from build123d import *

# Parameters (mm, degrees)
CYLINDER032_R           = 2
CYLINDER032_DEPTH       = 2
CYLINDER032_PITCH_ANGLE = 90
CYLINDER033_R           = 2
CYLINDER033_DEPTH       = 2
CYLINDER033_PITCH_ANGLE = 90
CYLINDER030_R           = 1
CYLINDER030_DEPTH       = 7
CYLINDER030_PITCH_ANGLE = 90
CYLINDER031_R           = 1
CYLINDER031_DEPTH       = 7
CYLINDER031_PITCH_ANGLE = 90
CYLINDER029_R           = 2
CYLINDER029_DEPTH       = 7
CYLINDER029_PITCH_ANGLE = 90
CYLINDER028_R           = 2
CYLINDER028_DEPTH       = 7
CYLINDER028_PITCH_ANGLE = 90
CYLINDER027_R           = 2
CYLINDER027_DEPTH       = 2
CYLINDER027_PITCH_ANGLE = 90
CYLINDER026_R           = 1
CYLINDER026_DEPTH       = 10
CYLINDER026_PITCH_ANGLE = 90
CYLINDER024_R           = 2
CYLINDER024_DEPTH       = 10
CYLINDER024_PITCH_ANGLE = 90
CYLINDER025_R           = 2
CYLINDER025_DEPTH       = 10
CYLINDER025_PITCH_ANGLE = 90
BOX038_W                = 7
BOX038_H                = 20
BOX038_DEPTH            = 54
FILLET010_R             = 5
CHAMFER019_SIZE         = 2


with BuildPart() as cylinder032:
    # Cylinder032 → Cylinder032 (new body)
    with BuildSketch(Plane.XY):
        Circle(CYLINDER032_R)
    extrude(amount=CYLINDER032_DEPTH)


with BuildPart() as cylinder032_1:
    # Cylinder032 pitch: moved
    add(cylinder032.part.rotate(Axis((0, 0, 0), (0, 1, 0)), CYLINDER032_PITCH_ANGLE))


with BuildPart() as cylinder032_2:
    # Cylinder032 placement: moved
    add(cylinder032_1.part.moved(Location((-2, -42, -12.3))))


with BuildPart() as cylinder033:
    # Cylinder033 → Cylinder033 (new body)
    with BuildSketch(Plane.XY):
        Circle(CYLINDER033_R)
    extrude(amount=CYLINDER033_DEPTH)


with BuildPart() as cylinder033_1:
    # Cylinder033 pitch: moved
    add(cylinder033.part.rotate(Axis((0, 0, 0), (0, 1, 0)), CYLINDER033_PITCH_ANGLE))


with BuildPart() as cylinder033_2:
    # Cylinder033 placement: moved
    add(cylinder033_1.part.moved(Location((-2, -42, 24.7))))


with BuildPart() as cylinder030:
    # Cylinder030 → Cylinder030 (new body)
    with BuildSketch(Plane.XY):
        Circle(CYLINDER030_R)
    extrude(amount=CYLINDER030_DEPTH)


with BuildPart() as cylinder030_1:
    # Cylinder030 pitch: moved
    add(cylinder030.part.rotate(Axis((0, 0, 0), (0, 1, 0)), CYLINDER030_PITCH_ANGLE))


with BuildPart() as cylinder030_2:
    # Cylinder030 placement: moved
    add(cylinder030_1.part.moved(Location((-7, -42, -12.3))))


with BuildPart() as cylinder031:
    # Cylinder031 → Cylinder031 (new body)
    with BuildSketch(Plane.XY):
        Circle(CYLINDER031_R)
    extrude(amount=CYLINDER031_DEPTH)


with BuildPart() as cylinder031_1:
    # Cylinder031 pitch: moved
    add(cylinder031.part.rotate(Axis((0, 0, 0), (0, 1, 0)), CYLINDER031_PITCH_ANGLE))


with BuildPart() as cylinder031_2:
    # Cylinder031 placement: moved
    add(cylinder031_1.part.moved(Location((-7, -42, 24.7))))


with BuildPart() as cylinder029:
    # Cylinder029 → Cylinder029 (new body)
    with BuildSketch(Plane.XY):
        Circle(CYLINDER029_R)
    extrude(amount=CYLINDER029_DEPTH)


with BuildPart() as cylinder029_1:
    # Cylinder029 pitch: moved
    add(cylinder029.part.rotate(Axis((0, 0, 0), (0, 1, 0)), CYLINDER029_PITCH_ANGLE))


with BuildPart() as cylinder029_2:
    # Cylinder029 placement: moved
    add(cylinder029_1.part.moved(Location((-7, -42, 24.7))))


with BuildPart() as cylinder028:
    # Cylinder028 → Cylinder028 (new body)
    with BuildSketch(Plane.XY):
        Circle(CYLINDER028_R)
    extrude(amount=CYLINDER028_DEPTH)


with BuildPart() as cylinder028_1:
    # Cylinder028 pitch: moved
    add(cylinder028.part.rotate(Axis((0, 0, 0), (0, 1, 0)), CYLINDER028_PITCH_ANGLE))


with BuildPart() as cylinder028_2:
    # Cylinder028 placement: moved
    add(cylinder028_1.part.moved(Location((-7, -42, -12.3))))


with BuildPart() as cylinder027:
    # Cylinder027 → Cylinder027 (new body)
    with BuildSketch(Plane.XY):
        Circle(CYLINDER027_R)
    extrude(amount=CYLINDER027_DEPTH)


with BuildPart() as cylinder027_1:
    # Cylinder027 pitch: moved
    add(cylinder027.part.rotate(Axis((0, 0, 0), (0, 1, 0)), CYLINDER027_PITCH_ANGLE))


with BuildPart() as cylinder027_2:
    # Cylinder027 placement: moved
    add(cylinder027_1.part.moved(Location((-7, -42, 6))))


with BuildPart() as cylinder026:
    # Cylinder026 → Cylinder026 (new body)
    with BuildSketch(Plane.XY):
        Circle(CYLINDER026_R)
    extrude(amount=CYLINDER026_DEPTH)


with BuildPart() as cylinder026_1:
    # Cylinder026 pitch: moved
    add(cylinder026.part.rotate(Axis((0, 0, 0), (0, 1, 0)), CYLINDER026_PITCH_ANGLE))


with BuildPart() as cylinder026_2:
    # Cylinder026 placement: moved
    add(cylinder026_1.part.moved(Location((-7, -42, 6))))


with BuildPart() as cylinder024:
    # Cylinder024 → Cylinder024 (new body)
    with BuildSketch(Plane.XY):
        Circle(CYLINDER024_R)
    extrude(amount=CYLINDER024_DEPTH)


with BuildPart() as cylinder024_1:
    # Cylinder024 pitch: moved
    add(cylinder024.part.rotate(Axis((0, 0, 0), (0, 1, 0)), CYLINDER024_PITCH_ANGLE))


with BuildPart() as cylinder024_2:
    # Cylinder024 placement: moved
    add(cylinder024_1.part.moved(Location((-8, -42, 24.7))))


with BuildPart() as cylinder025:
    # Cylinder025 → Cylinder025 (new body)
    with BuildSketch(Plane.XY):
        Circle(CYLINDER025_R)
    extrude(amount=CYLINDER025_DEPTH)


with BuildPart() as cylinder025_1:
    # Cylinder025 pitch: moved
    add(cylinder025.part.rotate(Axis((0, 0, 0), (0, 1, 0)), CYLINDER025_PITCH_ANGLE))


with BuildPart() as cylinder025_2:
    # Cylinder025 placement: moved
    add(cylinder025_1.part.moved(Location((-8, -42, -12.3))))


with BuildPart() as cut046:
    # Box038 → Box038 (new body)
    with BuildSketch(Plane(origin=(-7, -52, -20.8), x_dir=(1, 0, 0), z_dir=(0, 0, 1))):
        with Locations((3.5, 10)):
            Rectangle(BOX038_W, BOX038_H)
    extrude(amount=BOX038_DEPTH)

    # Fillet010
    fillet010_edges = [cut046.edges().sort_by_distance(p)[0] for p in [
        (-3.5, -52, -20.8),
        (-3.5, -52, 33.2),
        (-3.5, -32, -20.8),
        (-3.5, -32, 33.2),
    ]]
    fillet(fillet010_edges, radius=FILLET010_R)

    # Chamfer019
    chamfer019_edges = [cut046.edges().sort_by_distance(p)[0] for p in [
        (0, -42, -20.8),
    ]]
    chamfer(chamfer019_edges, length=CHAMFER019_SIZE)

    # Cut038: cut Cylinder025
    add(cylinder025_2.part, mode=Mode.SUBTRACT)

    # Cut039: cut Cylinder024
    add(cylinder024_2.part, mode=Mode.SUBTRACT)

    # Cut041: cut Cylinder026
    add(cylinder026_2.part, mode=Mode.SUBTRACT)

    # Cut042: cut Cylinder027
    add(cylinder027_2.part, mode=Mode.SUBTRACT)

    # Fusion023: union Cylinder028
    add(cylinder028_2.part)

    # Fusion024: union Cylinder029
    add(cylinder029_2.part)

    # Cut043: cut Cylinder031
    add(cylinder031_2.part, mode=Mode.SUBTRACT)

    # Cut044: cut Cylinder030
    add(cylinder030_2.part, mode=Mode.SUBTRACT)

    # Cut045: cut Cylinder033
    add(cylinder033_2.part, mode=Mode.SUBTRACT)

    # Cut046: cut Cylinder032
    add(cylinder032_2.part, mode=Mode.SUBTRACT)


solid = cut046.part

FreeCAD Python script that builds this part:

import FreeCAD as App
import Part
import Sketcher
from FreeCAD import Vector


def edges_at(feature, points):
    """Names of the edges that pass closest to the given points."""
    edges = feature.Shape.Edges
    near = lambda p: min(range(len(edges)), key=lambda i: edges[i].distToShape(Part.Vertex(*p))[0])
    return sorted({f"Edge{near(p) + 1}" for p in points})


def add_polygon(sketch, points):
    """Adds a closed chain of lines whose ends are joined by coincident constraints."""
    first, n = sketch.GeometryCount, len(points)
    for a, b in zip(points, points[1:] + points[:1]):
        sketch.addGeometry(Part.LineSegment(App.Vector(*a, 0), App.Vector(*b, 0)), False)
    for i in range(n):
        sketch.addConstraint(Sketcher.Constraint("Coincident", first + i, 2, first + (i + 1) % n, 1))

doc = App.newDocument("Part")
body = doc.addObject("PartDesign::Body", "Body")

# Sketch on XY plane
sketch1 = body.newObject("Sketcher::SketchObject", "Sketch")
sketch1.AttachmentSupport = (doc.getObject("XY_Plane"), [""])
sketch1.MapMode = "FlatFace"
sketch1.addGeometry(Part.Circle(Vector(0, 0, 0), Vector(0, 0, 1), 2), False)
sketch1.addConstraint([
    Sketcher.Constraint("Coincident", 0, 3, -1, 1),
    Sketcher.Constraint("Diameter", 0, 4.0),
])
pad1 = body.newObject("PartDesign::Pad", "Pad")
pad1.Profile = sketch1
pad1.Length = 2
body2 = doc.addObject("PartDesign::Body", "Body001")
doc.recompute()

body.Placement = App.Placement(Vector(0, 0, 0), App.Rotation(Vector(0, 1, 0), 90))
boolean = body2.newObject("PartDesign::Boolean", "Boolean")
boolean.Type = "Fuse"
boolean.addObjects([body])
body3 = doc.addObject("PartDesign::Body", "Body002")
doc.recompute()

body2.Placement = App.Placement(Vector(-2, -42, -12.3), App.Rotation(Vector(0, 0, 1), 0))
boolean2 = body3.newObject("PartDesign::Boolean", "Boolean001")
boolean2.Type = "Fuse"
boolean2.addObjects([body2])
body4 = doc.addObject("PartDesign::Body", "Body003")

# Sketch on XY plane
sketch2 = body4.newObject("Sketcher::SketchObject", "Sketch001")
sketch2.AttachmentSupport = (doc.getObject("XY_Plane003"), [""])
sketch2.MapMode = "FlatFace"
sketch2.addGeometry(Part.Circle(Vector(0, 0, 0), Vector(0, 0, 1), 2), False)
sketch2.addConstraint([
    Sketcher.Constraint("Coincident", 0, 3, -1, 1),
    Sketcher.Constraint("Diameter", 0, 4.0),
])
pad2 = body4.newObject("PartDesign::Pad", "Pad001")
pad2.Profile = sketch2
pad2.Length = 2
body5 = doc.addObject("PartDesign::Body", "Body004")
doc.recompute()

body4.Placement = App.Placement(Vector(0, 0, 0), App.Rotation(Vector(0, 1, 0), 90))
boolean3 = body5.newObject("PartDesign::Boolean", "Boolean002")
boolean3.Type = "Fuse"
boolean3.addObjects([body4])
body6 = doc.addObject("PartDesign::Body", "Body005")
doc.recompute()

body5.Placement = App.Placement(Vector(-2, -42, 24.7), App.Rotation(Vector(0, 0, 1), 0))
boolean4 = body6.newObject("PartDesign::Boolean", "Boolean003")
boolean4.Type = "Fuse"
boolean4.addObjects([body5])
body7 = doc.addObject("PartDesign::Body", "Body006")

# Sketch on XY plane
sketch3 = body7.newObject("Sketcher::SketchObject", "Sketch002")
sketch3.AttachmentSupport = (doc.getObject("XY_Plane006"), [""])
sketch3.MapMode = "FlatFace"
sketch3.addGeometry(Part.Circle(Vector(0, 0, 0), Vector(0, 0, 1), 1), False)
sketch3.addConstraint([
    Sketcher.Constraint("Coincident", 0, 3, -1, 1),
    Sketcher.Constraint("Diameter", 0, 2.0),
])
pad3 = body7.newObject("PartDesign::Pad", "Pad002")
pad3.Profile = sketch3
pad3.Length = 7
body8 = doc.addObject("PartDesign::Body", "Body007")
doc.recompute()

body7.Placement = App.Placement(Vector(0, 0, 0), App.Rotation(Vector(0, 1, 0), 90))
boolean5 = body8.newObject("PartDesign::Boolean", "Boolean004")
boolean5.Type = "Fuse"
boolean5.addObjects([body7])
body9 = doc.addObject("PartDesign::Body", "Body008")
doc.recompute()

body8.Placement = App.Placement(Vector(-7, -42, -12.3), App.Rotation(Vector(0, 0, 1), 0))
boolean6 = body9.newObject("PartDesign::Boolean", "Boolean005")
boolean6.Type = "Fuse"
boolean6.addObjects([body8])
body10 = doc.addObject("PartDesign::Body", "Body009")

# Sketch on XY plane
sketch4 = body10.newObject("Sketcher::SketchObject", "Sketch003")
sketch4.AttachmentSupport = (doc.getObject("XY_Plane009"), [""])
sketch4.MapMode = "FlatFace"
sketch4.addGeometry(Part.Circle(Vector(0, 0, 0), Vector(0, 0, 1), 1), False)
sketch4.addConstraint([
    Sketcher.Constraint("Coincident", 0, 3, -1, 1),
    Sketcher.Constraint("Diameter", 0, 2.0),
])
pad4 = body10.newObject("PartDesign::Pad", "Pad003")
pad4.Profile = sketch4
pad4.Length = 7
body11 = doc.addObject("PartDesign::Body", "Body010")
doc.recompute()

body10.Placement = App.Placement(Vector(0, 0, 0), App.Rotation(Vector(0, 1, 0), 90))
boolean7 = body11.newObject("PartDesign::Boolean", "Boolean006")
boolean7.Type = "Fuse"
boolean7.addObjects([body10])
body12 = doc.addObject("PartDesign::Body", "Body011")
doc.recompute()

body11.Placement = App.Placement(Vector(-7, -42, 24.7), App.Rotation(Vector(0, 0, 1), 0))
boolean8 = body12.newObject("PartDesign::Boolean", "Boolean007")
boolean8.Type = "Fuse"
boolean8.addObjects([body11])
body13 = doc.addObject("PartDesign::Body", "Body012")

# Sketch on XY plane
sketch5 = body13.newObject("Sketcher::SketchObject", "Sketch004")
sketch5.AttachmentSupport = (doc.getObject("XY_Plane012"), [""])
sketch5.MapMode = "FlatFace"
sketch5.addGeometry(Part.Circle(Vector(0, 0, 0), Vector(0, 0, 1), 2), False)
sketch5.addConstraint([
    Sketcher.Constraint("Coincident", 0, 3, -1, 1),
    Sketcher.Constraint("Diameter", 0, 4.0),
])
pad5 = body13.newObject("PartDesign::Pad", "Pad004")
pad5.Profile = sketch5
pad5.Length = 7
body14 = doc.addObject("PartDesign::Body", "Body013")
doc.recompute()

body13.Placement = App.Placement(Vector(0, 0, 0), App.Rotation(Vector(0, 1, 0), 90))
boolean9 = body14.newObject("PartDesign::Boolean", "Boolean008")
boolean9.Type = "Fuse"
boolean9.addObjects([body13])
body15 = doc.addObject("PartDesign::Body", "Body014")
doc.recompute()

body14.Placement = App.Placement(Vector(-7, -42, 24.7), App.Rotation(Vector(0, 0, 1), 0))
boolean10 = body15.newObject("PartDesign::Boolean", "Boolean009")
boolean10.Type = "Fuse"
boolean10.addObjects([body14])
body16 = doc.addObject("PartDesign::Body", "Body015")

# Sketch on XY plane
sketch6 = body16.newObject("Sketcher::SketchObject", "Sketch005")
sketch6.AttachmentSupport = (doc.getObject("XY_Plane015"), [""])
sketch6.MapMode = "FlatFace"
sketch6.addGeometry(Part.Circle(Vector(0, 0, 0), Vector(0, 0, 1), 2), False)
sketch6.addConstraint([
    Sketcher.Constraint("Coincident", 0, 3, -1, 1),
    Sketcher.Constraint("Diameter", 0, 4.0),
])
pad6 = body16.newObject("PartDesign::Pad", "Pad005")
pad6.Profile = sketch6
pad6.Length = 7
body17 = doc.addObject("PartDesign::Body", "Body016")
doc.recompute()

body16.Placement = App.Placement(Vector(0, 0, 0), App.Rotation(Vector(0, 1, 0), 90))
boolean11 = body17.newObject("PartDesign::Boolean", "Boolean010")
boolean11.Type = "Fuse"
boolean11.addObjects([body16])
body18 = doc.addObject("PartDesign::Body", "Body017")
doc.recompute()

body17.Placement = App.Placement(Vector(-7, -42, -12.3), App.Rotation(Vector(0, 0, 1), 0))
boolean12 = body18.newObject("PartDesign::Boolean", "Boolean011")
boolean12.Type = "Fuse"
boolean12.addObjects([body17])
body19 = doc.addObject("PartDesign::Body", "Body018")

# Sketch on XY plane
sketch7 = body19.newObject("Sketcher::SketchObject", "Sketch006")
sketch7.AttachmentSupport = (doc.getObject("XY_Plane018"), [""])
sketch7.MapMode = "FlatFace"
sketch7.addGeometry(Part.Circle(Vector(0, 0, 0), Vector(0, 0, 1), 2), False)
sketch7.addConstraint([
    Sketcher.Constraint("Coincident", 0, 3, -1, 1),
    Sketcher.Constraint("Diameter", 0, 4.0),
])
pad7 = body19.newObject("PartDesign::Pad", "Pad006")
pad7.Profile = sketch7
pad7.Length = 2
body20 = doc.addObject("PartDesign::Body", "Body019")
doc.recompute()

body19.Placement = App.Placement(Vector(0, 0, 0), App.Rotation(Vector(0, 1, 0), 90))
boolean13 = body20.newObject("PartDesign::Boolean", "Boolean012")
boolean13.Type = "Fuse"
boolean13.addObjects([body19])
body21 = doc.addObject("PartDesign::Body", "Body020")
doc.recompute()

body20.Placement = App.Placement(Vector(-7, -42, 6), App.Rotation(Vector(0, 0, 1), 0))
boolean14 = body21.newObject("PartDesign::Boolean", "Boolean013")
boolean14.Type = "Fuse"
boolean14.addObjects([body20])
body22 = doc.addObject("PartDesign::Body", "Body021")

# Sketch on XY plane
sketch8 = body22.newObject("Sketcher::SketchObject", "Sketch007")
sketch8.AttachmentSupport = (doc.getObject("XY_Plane021"), [""])
sketch8.MapMode = "FlatFace"
sketch8.addGeometry(Part.Circle(Vector(0, 0, 0), Vector(0, 0, 1), 1), False)
sketch8.addConstraint([
    Sketcher.Constraint("Coincident", 0, 3, -1, 1),
    Sketcher.Constraint("Diameter", 0, 2.0),
])
pad8 = body22.newObject("PartDesign::Pad", "Pad007")
pad8.Profile = sketch8
pad8.Length = 10
body23 = doc.addObject("PartDesign::Body", "Body022")
doc.recompute()

body22.Placement = App.Placement(Vector(0, 0, 0), App.Rotation(Vector(0, 1, 0), 90))
boolean15 = body23.newObject("PartDesign::Boolean", "Boolean014")
boolean15.Type = "Fuse"
boolean15.addObjects([body22])
body24 = doc.addObject("PartDesign::Body", "Body023")
doc.recompute()

body23.Placement = App.Placement(Vector(-7, -42, 6), App.Rotation(Vector(0, 0, 1), 0))
boolean16 = body24.newObject("PartDesign::Boolean", "Boolean015")
boolean16.Type = "Fuse"
boolean16.addObjects([body23])
body25 = doc.addObject("PartDesign::Body", "Body024")

# Sketch on XY plane
sketch9 = body25.newObject("Sketcher::SketchObject", "Sketch008")
sketch9.AttachmentSupport = (doc.getObject("XY_Plane024"), [""])
sketch9.MapMode = "FlatFace"
sketch9.addGeometry(Part.Circle(Vector(0, 0, 0), Vector(0, 0, 1), 2), False)
sketch9.addConstraint([
    Sketcher.Constraint("Coincident", 0, 3, -1, 1),
    Sketcher.Constraint("Diameter", 0, 4.0),
])
pad9 = body25.newObject("PartDesign::Pad", "Pad008")
pad9.Profile = sketch9
pad9.Length = 10
body26 = doc.addObject("PartDesign::Body", "Body025")
doc.recompute()

body25.Placement = App.Placement(Vector(0, 0, 0), App.Rotation(Vector(0, 1, 0), 90))
boolean17 = body26.newObject("PartDesign::Boolean", "Boolean016")
boolean17.Type = "Fuse"
boolean17.addObjects([body25])
body27 = doc.addObject("PartDesign::Body", "Body026")
doc.recompute()

body26.Placement = App.Placement(Vector(-8, -42, 24.7), App.Rotation(Vector(0, 0, 1), 0))
boolean18 = body27.newObject("PartDesign::Boolean", "Boolean017")
boolean18.Type = "Fuse"
boolean18.addObjects([body26])
body28 = doc.addObject("PartDesign::Body", "Body027")

# Sketch on XY plane
sketch10 = body28.newObject("Sketcher::SketchObject", "Sketch009")
sketch10.AttachmentSupport = (doc.getObject("XY_Plane027"), [""])
sketch10.MapMode = "FlatFace"
sketch10.addGeometry(Part.Circle(Vector(0, 0, 0), Vector(0, 0, 1), 2), False)
sketch10.addConstraint([
    Sketcher.Constraint("Coincident", 0, 3, -1, 1),
    Sketcher.Constraint("Diameter", 0, 4.0),
])
pad10 = body28.newObject("PartDesign::Pad", "Pad009")
pad10.Profile = sketch10
pad10.Length = 10
body29 = doc.addObject("PartDesign::Body", "Body028")
doc.recompute()

body28.Placement = App.Placement(Vector(0, 0, 0), App.Rotation(Vector(0, 1, 0), 90))
boolean19 = body29.newObject("PartDesign::Boolean", "Boolean018")
boolean19.Type = "Fuse"
boolean19.addObjects([body28])
body30 = doc.addObject("PartDesign::Body", "Body029")
doc.recompute()

body29.Placement = App.Placement(Vector(-8, -42, -12.3), App.Rotation(Vector(0, 0, 1), 0))
boolean20 = body30.newObject("PartDesign::Boolean", "Boolean019")
boolean20.Type = "Fuse"
boolean20.addObjects([body29])
body31 = doc.addObject("PartDesign::Body", "Body030")

# Sketch on XY plane
sketch11 = body31.newObject("Sketcher::SketchObject", "Sketch010")
sketch11.AttachmentSupport = (doc.getObject("XY_Plane030"), [""])
sketch11.MapMode = "FlatFace"
sketch11.AttachmentOffset = App.Placement(Vector(0, 0, -20.8), App.Rotation())
add_polygon(sketch11, [(-7, -32), (-7, -52), (0, -52), (0, -32)])  # lines 0-3
sketch11.addConstraint([
    Sketcher.Constraint("Vertical", 0),
    Sketcher.Constraint("Horizontal", 1),
    Sketcher.Constraint("Vertical", 2),
    Sketcher.Constraint("Horizontal", 3),
    Sketcher.Constraint("PointOnObject", 1, 2, -2),
    Sketcher.Constraint("DistanceX", 1, 1, 1, 2, 7.0),
    Sketcher.Constraint("DistanceY", 0, 2, 0, 1, 20.0),
    Sketcher.Constraint("DistanceY", 0, 2, -1, 1, 52.0),
])
pad11 = body31.newObject("PartDesign::Pad", "Pad010")
pad11.Profile = sketch11
pad11.Length = 54
doc.recompute()

fillet = body31.newObject("PartDesign::Fillet", "Fillet")
fillet.Base = (pad11, edges_at(pad11, [
    (-3.5, -52, -20.8),
    (-3.5, -52, 33.2),
    (-3.5, -32, -20.8),
    (-3.5, -32, 33.2),
]))
fillet.Radius = 5
doc.recompute()

chamfer = body31.newObject("PartDesign::Chamfer", "Chamfer")
chamfer.Base = (fillet, edges_at(fillet, [(0, -42, -20.8)]))
chamfer.Size = 2
doc.recompute()

boolean21 = body31.newObject("PartDesign::Boolean", "Boolean020")
boolean21.Type = "Cut"
boolean21.addObjects([body30])
doc.recompute()

boolean22 = body31.newObject("PartDesign::Boolean", "Boolean021")
boolean22.Type = "Cut"
boolean22.addObjects([body27])
doc.recompute()

boolean23 = body31.newObject("PartDesign::Boolean", "Boolean022")
boolean23.Type = "Cut"
boolean23.addObjects([body24])
doc.recompute()

boolean24 = body31.newObject("PartDesign::Boolean", "Boolean023")
boolean24.Type = "Cut"
boolean24.addObjects([body21])
doc.recompute()

boolean25 = body31.newObject("PartDesign::Boolean", "Boolean024")
boolean25.Type = "Fuse"
boolean25.addObjects([body18])
doc.recompute()

boolean26 = body31.newObject("PartDesign::Boolean", "Boolean025")
boolean26.Type = "Fuse"
boolean26.addObjects([body15])
doc.recompute()

boolean27 = body31.newObject("PartDesign::Boolean", "Boolean026")
boolean27.Type = "Cut"
boolean27.addObjects([body12])
doc.recompute()

boolean28 = body31.newObject("PartDesign::Boolean", "Boolean027")
boolean28.Type = "Cut"
boolean28.addObjects([body9])
doc.recompute()

boolean29 = body31.newObject("PartDesign::Boolean", "Boolean028")
boolean29.Type = "Cut"
boolean29.addObjects([body6])
doc.recompute()

boolean30 = body31.newObject("PartDesign::Boolean", "Boolean029")
boolean30.Type = "Cut"
boolean30.addObjects([body3])

doc.recompute()
